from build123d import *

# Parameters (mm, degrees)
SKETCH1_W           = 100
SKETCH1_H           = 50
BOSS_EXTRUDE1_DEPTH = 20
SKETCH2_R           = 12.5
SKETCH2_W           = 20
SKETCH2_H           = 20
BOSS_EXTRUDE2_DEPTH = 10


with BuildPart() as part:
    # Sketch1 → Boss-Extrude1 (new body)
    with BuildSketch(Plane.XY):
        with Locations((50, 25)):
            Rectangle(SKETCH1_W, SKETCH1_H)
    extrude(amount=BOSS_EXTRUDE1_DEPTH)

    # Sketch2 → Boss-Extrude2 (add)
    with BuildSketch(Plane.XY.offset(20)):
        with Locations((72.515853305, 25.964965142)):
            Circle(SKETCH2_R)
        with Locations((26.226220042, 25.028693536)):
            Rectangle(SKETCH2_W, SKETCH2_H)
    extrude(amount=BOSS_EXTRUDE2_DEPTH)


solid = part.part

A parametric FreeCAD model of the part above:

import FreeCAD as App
import Part
import Sketcher

doc = App.newDocument("Part")
body = doc.addObject("PartDesign::Body", "Body")

# Sketch on XY plane
sketch1 = body.newObject("Sketcher::SketchObject", "Sketch")
sketch1.AttachmentSupport = (doc.getObject("XY_Plane"), [""])
sketch1.MapMode = "FlatFace"
sketch1.addGeometry(Part.LineSegment(App.Vector(0, 50, 0), App.Vector(0, 0, 0)), False)
sketch1.addGeometry(Part.LineSegment(App.Vector(0, 0, 0), App.Vector(100, 0, 0)), False)
sketch1.addGeometry(Part.LineSegment(App.Vector(100, 0, 0), App.Vector(100, 50, 0)), False)
sketch1.addGeometry(Part.LineSegment(App.Vector(100, 50, 0), App.Vector(0, 50, 0)), False)
sketch1.addConstraint(Sketcher.Constraint("Coincident", 0, 2, 1, 1))
sketch1.addConstraint(Sketcher.Constraint("Coincident", 1, 2, 2, 1))
sketch1.addConstraint(Sketcher.Constraint("Coincident", 2, 2, 3, 1))
sketch1.addConstraint(Sketcher.Constraint("Coincident", 3, 2, 0, 1))
sketch1.addConstraint(Sketcher.Constraint("Vertical", 0))
sketch1.addConstraint(Sketcher.Constraint("Horizontal", 1))
sketch1.addConstraint(Sketcher.Constraint("Vertical", 2))
sketch1.addConstraint(Sketcher.Constraint("Horizontal", 3))
sketch1.addConstraint(Sketcher.Constraint("Coincident", 0, 2, -1, 1))
sketch1.addConstraint(Sketcher.Constraint("DistanceX", 1, 1, 1, 2, 100.0))
sketch1.addConstraint(Sketcher.Constraint("DistanceY", 0, 2, 0, 1, 50.0))
pad1 = body.newObject("PartDesign::Pad", "Pad")
pad1.Profile = sketch1
pad1.Length = 20

# Sketch on XY plane
sketch2 = body.newObject("Sketcher::SketchObject", "Sketch001")
sketch2.AttachmentSupport = (doc.getObject("XY_Plane"), [""])
sketch2.MapMode = "FlatFace"
sketch2.AttachmentOffset = App.Placement(App.Vector(0, 0, 20), App.Rotation())
sketch2.addGeometry(Part.Circle(App.Vector(73, 26, 0), App.Vector(0, 0, 1), 12), False)
sketch2.addGeometry(Part.LineSegment(App.Vector(16, 35, 0), App.Vector(16, 15, 0)), False)
sketch2.addGeometry(Part.LineSegment(App.Vector(16, 15, 0), App.Vector(36, 15, 0)), False)
sketch2.addGeometry(Part.LineSegment(App.Vector(36, 15, 0), App.Vector(36, 35, 0)), False)
sketch2.addGeometry(Part.LineSegment(App.Vector(36, 35, 0), App.Vector(16, 35, 0)), False)
sketch2.addConstraint(Sketcher.Constraint("Coincident", 1, 2, 2, 1))
sketch2.addConstraint(Sketcher.Constraint("Coincident", 2, 2, 3, 1))
sketch2.addConstraint(Sketcher.Constraint("Coincident", 3, 2, 4, 1))
sketch2.addConstraint(Sketcher.Constraint("Coincident", 4, 2, 1, 1))
sketch2.addConstraint(Sketcher.Constraint("Vertical", 1))
sketch2.addConstraint(Sketcher.Constraint("Horizontal", 2))
sketch2.addConstraint(Sketcher.Constraint("Vertical", 3))
sketch2.addConstraint(Sketcher.Constraint("Horizontal", 4))
sketch2.addConstraint(Sketcher.Constraint("Equal", 4, 1))
sketch2.addConstraint(Sketcher.Constraint("Diameter", 0, 25.0))
sketch2.addConstraint(Sketcher.Constraint("DistanceX", 2, 1, 2, 2, 20.0))
sketch2.addConstraint(Sketcher.Constraint("DistanceX", -1, 1, 1, 2, 16.22622))
sketch2.addConstraint(Sketcher.Constraint("DistanceY", 1, 2, 0, 3, 10.936272))
sketch2.addConstraint(Sketcher.Constraint("DistanceX", -1, 1, 0, 3, 72.515853))
sketch2.addConstraint(Sketcher.Constraint("DistanceY", -1, 1, 0, 3, 25.964965))
pad2 = body.newObject("PartDesign::Pad", "Pad001")
pad2.Profile = sketch2
pad2.Length = 10

doc.recompute()
